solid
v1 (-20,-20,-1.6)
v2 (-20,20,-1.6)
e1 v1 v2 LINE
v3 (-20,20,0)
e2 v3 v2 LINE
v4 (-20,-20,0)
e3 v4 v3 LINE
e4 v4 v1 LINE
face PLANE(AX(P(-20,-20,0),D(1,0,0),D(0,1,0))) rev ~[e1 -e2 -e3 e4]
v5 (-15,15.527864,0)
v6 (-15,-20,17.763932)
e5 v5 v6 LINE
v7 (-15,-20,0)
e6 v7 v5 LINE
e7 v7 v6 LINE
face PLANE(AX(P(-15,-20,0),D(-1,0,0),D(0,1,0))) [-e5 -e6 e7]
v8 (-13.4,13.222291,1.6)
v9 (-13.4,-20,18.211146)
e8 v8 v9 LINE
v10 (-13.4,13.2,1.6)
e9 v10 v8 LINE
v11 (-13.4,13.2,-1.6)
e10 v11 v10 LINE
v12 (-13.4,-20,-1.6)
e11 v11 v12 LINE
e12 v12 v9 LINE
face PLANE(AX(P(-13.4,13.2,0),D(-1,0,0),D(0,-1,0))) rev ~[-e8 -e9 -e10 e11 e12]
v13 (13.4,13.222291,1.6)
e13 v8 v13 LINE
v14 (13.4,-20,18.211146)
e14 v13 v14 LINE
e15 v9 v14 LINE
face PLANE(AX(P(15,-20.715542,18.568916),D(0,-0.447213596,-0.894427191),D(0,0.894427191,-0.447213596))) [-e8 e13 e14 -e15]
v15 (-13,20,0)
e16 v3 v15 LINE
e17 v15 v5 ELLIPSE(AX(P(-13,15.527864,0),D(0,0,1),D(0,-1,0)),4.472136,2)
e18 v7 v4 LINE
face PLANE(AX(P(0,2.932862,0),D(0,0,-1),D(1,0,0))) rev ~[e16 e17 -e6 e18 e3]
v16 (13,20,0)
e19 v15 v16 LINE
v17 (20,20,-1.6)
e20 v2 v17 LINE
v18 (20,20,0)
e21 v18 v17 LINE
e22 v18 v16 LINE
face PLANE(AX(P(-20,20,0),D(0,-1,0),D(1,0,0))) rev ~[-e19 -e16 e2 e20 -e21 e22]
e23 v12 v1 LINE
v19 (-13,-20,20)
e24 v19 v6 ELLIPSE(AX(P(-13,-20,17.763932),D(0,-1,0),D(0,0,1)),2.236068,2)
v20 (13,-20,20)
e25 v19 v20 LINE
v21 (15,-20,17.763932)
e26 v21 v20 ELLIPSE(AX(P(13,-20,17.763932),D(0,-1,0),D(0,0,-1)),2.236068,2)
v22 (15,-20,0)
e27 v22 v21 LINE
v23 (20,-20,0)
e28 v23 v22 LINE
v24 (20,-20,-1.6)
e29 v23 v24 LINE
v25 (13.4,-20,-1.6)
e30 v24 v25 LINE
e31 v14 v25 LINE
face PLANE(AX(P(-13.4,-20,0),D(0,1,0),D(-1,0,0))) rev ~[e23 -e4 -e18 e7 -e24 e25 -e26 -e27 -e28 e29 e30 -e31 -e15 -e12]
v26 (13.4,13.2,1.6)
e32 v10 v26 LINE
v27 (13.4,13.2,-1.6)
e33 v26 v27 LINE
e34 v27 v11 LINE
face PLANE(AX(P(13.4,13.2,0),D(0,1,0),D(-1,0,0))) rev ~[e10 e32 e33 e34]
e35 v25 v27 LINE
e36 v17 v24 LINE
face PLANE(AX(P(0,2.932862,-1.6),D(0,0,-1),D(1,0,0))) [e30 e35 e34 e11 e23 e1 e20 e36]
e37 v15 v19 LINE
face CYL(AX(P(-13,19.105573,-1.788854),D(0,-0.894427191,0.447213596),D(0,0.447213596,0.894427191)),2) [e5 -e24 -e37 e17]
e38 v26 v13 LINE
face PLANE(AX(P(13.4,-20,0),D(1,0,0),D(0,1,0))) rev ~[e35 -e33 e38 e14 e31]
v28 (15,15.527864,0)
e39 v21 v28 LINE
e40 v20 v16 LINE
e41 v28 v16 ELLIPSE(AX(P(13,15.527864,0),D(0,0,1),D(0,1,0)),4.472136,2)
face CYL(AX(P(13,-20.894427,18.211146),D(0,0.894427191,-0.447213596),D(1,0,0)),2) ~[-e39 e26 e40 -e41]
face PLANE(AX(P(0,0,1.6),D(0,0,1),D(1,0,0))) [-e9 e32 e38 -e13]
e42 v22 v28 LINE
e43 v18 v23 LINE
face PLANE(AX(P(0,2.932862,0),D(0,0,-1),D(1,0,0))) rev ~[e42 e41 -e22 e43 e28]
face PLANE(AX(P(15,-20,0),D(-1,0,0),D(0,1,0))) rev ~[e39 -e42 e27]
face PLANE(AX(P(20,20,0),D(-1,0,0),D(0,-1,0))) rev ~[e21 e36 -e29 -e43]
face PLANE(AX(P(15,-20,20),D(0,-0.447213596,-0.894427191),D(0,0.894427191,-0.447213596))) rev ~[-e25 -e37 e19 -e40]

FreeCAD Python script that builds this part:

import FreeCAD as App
import Part
import Sketcher
from FreeCAD import Vector
Q = App.Units.Quantity


def edges_at(feature, points):
    """Names of the edges that pass closest to the given points."""
    edges = feature.Shape.Edges
    near = lambda p: min(range(len(edges)), key=lambda i: edges[i].distToShape(Part.Vertex(*p))[0])
    return sorted({f"Edge{near(p) + 1}" for p in points})


def faces_at(feature, points):
    """Names of the faces that lie closest to the given points."""
    faces = feature.Shape.Faces
    near = lambda p: min(range(len(faces)), key=lambda i: faces[i].distToShape(Part.Vertex(*p))[0])
    return sorted({f"Face{near(p) + 1}" for p in points})


def add_polygon(sketch, points):
    """Adds a closed chain of lines whose ends are joined by coincident constraints."""
    first, n = sketch.GeometryCount, len(points)
    for a, b in zip(points, points[1:] + points[:1]):
        sketch.addGeometry(Part.LineSegment(App.Vector(*a, 0), App.Vector(*b, 0)), False)
    for i in range(n):
        sketch.addConstraint(Sketcher.Constraint("Coincident", first + i, 2, first + (i + 1) % n, 1))

doc = App.newDocument("Part")
params = doc.addObject("Spreadsheet::Sheet", "Params")
for row, (alias, value) in enumerate([
    ("sketch1_width", "30 mm"),
    ("sketch1_height", "40 mm"),
    ("pad1_length", "20 mm"),
    ("sketch2_width", "40 mm"),
    ("sketch2_height", "20 mm"),
    ("thickness_wall", "1.6 mm"),
    ("sketch3_width", "26.8 mm"),
    ("sketch3_height", "33.2 mm"),
    ("pocket2_length", "1.6 mm"),
    ("sketch4_width", "40 mm"),
    ("sketch4_width2", "6.6 mm"),
    ("sketch4_height", "33.2 mm"),
    ("pad2_length", "1.6 mm"),
    ("fillet_radius", "2 mm"),
], start=1):
    params.set(f"A{row}", alias)
    params.set(f"B{row}", "=" + value)
    params.setAlias(f"B{row}", alias)

body = doc.addObject("PartDesign::Body", "Body")

# Sketch on XY plane
sketch1 = body.newObject("Sketcher::SketchObject", "Sketch")
sketch1.AttachmentSupport = (doc.getObject("XY_Plane"), [""])
sketch1.MapMode = "FlatFace"
add_polygon(sketch1, [(-15, 20), (-15, -20), (15, -20), (15, 20)])  # lines 0-3
sketch1.addConstraint(Sketcher.Constraint("Vertical", 0))
sketch1.addConstraint(Sketcher.Constraint("Horizontal", 1))
sketch1.addConstraint(Sketcher.Constraint("Vertical", 2))
sketch1.addConstraint(Sketcher.Constraint("Horizontal", 3))
sketch1.addConstraint(Sketcher.Constraint("Symmetric", 0, 2, 2, 2, -1, 1))
sketch1.addConstraint(Sketcher.Constraint("DistanceX", 1, 1, 1, 2, Q("30 mm")))
sketch1.addConstraint(Sketcher.Constraint("DistanceY", 0, 2, 0, 1, Q("40 mm")))
sketch1.setExpression("Constraints[9]", "Params.sketch1_width")
sketch1.setExpression("Constraints[10]", "Params.sketch1_height")
pad1 = body.newObject("PartDesign::Pad", "Pad")
pad1.Profile = sketch1
pad1.setExpression("Length", "Params.pad1_length")

# Sketch on YZ plane
sketch2 = body.newObject("Sketcher::SketchObject", "Sketch001")
sketch2.AttachmentSupport = (doc.getObject("YZ_Plane"), [""])
sketch2.MapMode = "FlatFace"
sketch2.AttachmentOffset = App.Placement(Vector(0, 0, 15), App.Rotation())
add_polygon(sketch2, [(20, 20), (-20, 20), (20, 0)])  # lines 0-2
sketch2.addConstraint(Sketcher.Constraint("Horizontal", 0))
sketch2.addConstraint(Sketcher.Constraint("Vertical", 2))
sketch2.addConstraint(Sketcher.Constraint("PointOnObject", 1, 2, -1))
sketch2.addConstraint(Sketcher.Constraint("DistanceX", 0, 2, 0, 1, Q("40 mm")))
sketch2.addConstraint(Sketcher.Constraint("DistanceY", 2, 1, 2, 2, Q("20 mm")))
sketch2.addConstraint(Sketcher.Constraint("DistanceX", 0, 2, -1, 1, Q("20 mm")))
sketch2.setExpression("Constraints[6]", "Params.sketch2_width")
sketch2.setExpression("Constraints[7]", "Params.sketch2_height")
pocket1 = body.newObject("PartDesign::Pocket", "Pocket")
pocket1.Profile = sketch2
pocket1.Type = "ThroughAll"
doc.recompute()

thickness = body.newObject("PartDesign::Thickness", "Thickness")
thickness.Base = (pocket1, faces_at(pocket1, [(0, -20, 10)]))
thickness.setExpression("Value", "Params.thickness_wall")
thickness.Reversed = True
thickness.Join = "Arc"

# Sketch on XY plane
sketch3 = body.newObject("Sketcher::SketchObject", "Sketch002")
sketch3.AttachmentSupport = (doc.getObject("XY_Plane"), [""])
sketch3.MapMode = "FlatFace"
add_polygon(sketch3, [(-13, -20), (-13, 13), (13, 13), (13, -20)])  # lines 0-3
sketch3.addConstraint(Sketcher.Constraint("Vertical", 0))
sketch3.addConstraint(Sketcher.Constraint("Horizontal", 1))
sketch3.addConstraint(Sketcher.Constraint("Vertical", 2))
sketch3.addConstraint(Sketcher.Constraint("Horizontal", 3))
sketch3.addConstraint(Sketcher.Constraint("DistanceX", 1, 1, 1, 2, Q("26.8 mm")))
sketch3.addConstraint(Sketcher.Constraint("DistanceY", 0, 1, 0, 2, Q("33.2 mm")))
sketch3.addConstraint(Sketcher.Constraint("DistanceY", 2, 2, -1, 1, Q("20 mm")))
sketch3.addConstraint(Sketcher.Constraint("DistanceX", 0, 2, -1, 1, Q("13.4 mm")))
sketch3.setExpression("Constraints[8]", "Params.sketch3_width")
sketch3.setExpression("Constraints[9]", "Params.sketch3_height")
pocket2 = body.newObject("PartDesign::Pocket", "Pocket001")
pocket2.Profile = sketch3
pocket2.setExpression("Length", "Params.pocket2_length")
pocket2.Reversed = True

# Sketch on XY plane
sketch4 = body.newObject("Sketcher::SketchObject", "Sketch003")
sketch4.AttachmentSupport = (doc.getObject("XY_Plane"), [""])
sketch4.MapMode = "FlatFace"
add_polygon(sketch4, [(-20, -20), (-20, 20), (20, 20), (20, -20), (13, -20), (13, 13), (-13, 13), (-13, -20)])  # lines 0-7
sketch4.addConstraint(Sketcher.Constraint("Vertical", 0))
sketch4.addConstraint(Sketcher.Constraint("Horizontal", 1))
sketch4.addConstraint(Sketcher.Constraint("Vertical", 2))
sketch4.addConstraint(Sketcher.Constraint("Horizontal", 3))
sketch4.addConstraint(Sketcher.Constraint("Vertical", 4))
sketch4.addConstraint(Sketcher.Constraint("Horizontal", 5))
sketch4.addConstraint(Sketcher.Constraint("Vertical", 6))
sketch4.addConstraint(Sketcher.Constraint("Horizontal", 7))
sketch4.addConstraint(Sketcher.Constraint("Symmetric", 0, 2, 2, 2, -1, 1))
sketch4.addConstraint(Sketcher.Constraint("Symmetric", 3, 2, 6, 2, -2))
sketch4.addConstraint(Sketcher.Constraint("Equal", 1, 0))
sketch4.addConstraint(Sketcher.Constraint("DistanceX", 1, 1, 1, 2, Q("40 mm")))
sketch4.addConstraint(Sketcher.Constraint("DistanceX", 3, 2, 3, 1, Q("6.6 mm")))
sketch4.addConstraint(Sketcher.Constraint("DistanceY", 4, 1, 4, 2, Q("33.2 mm")))
sketch4.setExpression("Constraints[19]", "Params.sketch4_width")
sketch4.setExpression("Constraints[20]", "Params.sketch4_width2")
sketch4.setExpression("Constraints[21]", "Params.sketch4_height")
pad2 = body.newObject("PartDesign::Pad", "Pad001")
pad2.Profile = sketch4
pad2.setExpression("Length", "Params.pad2_length")
pad2.Reversed = True
doc.recompute()

fillet = body.newObject("PartDesign::Fillet", "Fillet")
fillet.Base = (pad2, edges_at(pad2, [(-15, 0, 10), (15, 0, 10)]))
fillet.setExpression("Radius", "Params.fillet_radius")

doc.recompute()
